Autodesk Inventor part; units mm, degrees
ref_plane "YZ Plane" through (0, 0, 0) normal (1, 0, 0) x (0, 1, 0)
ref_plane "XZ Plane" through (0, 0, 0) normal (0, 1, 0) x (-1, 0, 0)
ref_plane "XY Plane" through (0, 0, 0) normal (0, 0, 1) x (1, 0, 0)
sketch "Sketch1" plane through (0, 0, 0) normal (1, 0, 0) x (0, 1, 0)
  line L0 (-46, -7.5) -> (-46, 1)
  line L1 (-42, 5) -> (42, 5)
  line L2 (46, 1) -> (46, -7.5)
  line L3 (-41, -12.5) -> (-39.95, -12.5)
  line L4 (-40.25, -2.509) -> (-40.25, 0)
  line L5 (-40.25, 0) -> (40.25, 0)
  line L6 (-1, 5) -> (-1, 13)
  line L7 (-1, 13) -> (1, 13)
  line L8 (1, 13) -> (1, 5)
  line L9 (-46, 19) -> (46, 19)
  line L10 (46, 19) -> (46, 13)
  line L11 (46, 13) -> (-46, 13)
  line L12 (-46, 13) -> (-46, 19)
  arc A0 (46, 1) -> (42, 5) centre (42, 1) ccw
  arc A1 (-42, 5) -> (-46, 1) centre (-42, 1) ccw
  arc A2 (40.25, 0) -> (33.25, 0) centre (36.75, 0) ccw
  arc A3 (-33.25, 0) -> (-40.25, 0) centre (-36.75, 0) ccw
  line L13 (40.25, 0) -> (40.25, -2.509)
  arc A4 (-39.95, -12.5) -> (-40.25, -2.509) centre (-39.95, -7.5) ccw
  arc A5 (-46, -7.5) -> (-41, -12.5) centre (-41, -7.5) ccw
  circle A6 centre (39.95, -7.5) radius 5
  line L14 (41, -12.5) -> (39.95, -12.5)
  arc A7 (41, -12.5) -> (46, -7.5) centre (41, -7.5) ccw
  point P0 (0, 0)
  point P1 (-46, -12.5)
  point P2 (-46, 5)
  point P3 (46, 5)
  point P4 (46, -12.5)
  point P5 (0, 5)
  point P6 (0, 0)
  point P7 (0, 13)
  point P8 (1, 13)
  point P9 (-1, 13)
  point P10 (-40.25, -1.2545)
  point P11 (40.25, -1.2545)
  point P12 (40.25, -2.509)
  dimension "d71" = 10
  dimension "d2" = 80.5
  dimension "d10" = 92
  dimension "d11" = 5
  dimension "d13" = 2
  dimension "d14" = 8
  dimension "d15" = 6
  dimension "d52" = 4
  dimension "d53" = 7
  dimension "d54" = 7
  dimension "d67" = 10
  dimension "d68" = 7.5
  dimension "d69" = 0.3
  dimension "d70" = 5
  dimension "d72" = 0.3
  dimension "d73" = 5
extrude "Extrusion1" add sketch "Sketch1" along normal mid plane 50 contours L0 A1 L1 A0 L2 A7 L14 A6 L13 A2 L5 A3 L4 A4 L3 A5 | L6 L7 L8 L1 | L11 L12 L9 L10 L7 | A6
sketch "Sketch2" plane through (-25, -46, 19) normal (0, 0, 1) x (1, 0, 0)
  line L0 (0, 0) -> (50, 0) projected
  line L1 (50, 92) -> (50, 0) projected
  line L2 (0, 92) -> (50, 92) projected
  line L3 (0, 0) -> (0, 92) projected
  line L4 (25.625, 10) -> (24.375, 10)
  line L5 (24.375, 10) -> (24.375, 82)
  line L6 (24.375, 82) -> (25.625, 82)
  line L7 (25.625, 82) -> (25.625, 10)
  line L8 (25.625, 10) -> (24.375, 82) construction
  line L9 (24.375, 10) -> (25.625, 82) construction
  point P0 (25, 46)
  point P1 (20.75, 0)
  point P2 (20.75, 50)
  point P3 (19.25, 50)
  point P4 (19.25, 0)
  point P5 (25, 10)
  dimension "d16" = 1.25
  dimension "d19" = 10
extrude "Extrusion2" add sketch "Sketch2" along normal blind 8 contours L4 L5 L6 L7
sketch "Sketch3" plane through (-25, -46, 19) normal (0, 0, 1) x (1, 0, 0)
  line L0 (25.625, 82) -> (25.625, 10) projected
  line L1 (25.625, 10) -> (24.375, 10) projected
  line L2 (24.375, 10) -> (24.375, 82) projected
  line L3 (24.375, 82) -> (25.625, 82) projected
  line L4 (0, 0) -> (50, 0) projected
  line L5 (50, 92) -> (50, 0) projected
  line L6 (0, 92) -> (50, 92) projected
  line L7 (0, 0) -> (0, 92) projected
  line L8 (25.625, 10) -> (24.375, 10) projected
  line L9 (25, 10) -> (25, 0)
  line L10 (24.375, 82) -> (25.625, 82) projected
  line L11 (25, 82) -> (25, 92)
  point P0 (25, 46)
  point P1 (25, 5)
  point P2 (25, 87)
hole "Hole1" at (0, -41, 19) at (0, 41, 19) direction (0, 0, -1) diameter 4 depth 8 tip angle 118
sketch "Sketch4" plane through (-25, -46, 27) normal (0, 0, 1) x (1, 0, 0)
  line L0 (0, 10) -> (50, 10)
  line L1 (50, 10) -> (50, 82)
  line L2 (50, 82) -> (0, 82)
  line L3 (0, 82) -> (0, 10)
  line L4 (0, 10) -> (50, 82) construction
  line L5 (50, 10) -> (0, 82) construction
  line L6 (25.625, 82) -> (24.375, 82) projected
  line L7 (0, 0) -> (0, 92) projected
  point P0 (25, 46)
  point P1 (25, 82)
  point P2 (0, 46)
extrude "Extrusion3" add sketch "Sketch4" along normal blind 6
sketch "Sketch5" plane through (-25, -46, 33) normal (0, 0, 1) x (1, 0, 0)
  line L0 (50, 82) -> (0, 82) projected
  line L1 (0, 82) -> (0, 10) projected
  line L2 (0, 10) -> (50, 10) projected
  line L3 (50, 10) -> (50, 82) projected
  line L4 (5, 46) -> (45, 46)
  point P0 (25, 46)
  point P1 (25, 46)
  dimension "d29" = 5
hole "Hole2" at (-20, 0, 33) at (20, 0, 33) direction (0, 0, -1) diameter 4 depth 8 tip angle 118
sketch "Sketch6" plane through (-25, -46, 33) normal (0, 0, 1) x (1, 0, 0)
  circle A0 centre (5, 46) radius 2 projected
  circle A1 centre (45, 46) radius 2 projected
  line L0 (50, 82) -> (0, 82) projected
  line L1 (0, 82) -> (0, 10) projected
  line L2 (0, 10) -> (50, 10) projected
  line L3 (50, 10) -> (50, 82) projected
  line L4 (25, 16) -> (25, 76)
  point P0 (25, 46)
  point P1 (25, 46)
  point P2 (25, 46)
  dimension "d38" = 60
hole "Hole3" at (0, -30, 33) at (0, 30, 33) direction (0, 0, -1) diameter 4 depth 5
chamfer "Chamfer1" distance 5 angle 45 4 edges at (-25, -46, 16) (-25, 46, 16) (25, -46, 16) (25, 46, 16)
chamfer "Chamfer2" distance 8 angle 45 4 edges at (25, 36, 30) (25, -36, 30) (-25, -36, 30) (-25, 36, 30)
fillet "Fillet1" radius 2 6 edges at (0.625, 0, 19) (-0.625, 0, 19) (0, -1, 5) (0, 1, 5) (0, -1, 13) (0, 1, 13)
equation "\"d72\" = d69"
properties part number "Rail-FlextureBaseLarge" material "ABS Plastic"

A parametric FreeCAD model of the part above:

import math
import FreeCAD as App
import Part
import Sketcher


def edges_at(feature, points):
    """Names of the edges that pass closest to the given points."""
    edges = feature.Shape.Edges
    near = lambda p: min(range(len(edges)), key=lambda i: edges[i].distToShape(Part.Vertex(*p))[0])
    return sorted({f"Edge{near(p) + 1}" for p in points})


def add_polygon(sketch, points):
    """Adds a closed chain of lines whose ends are joined by coincident constraints."""
    first, n = sketch.GeometryCount, len(points)
    for a, b in zip(points, points[1:] + points[:1]):
        sketch.addGeometry(Part.LineSegment(App.Vector(*a, 0), App.Vector(*b, 0)), False)
    for i in range(n):
        sketch.addConstraint(Sketcher.Constraint("Coincident", first + i, 2, first + (i + 1) % n, 1))

doc = App.newDocument("Part")
params = doc.addObject("Spreadsheet::Sheet", "Params")
for row, (alias, value) in enumerate([
    ("sketch1_radius", "5 mm"),
    ("sketch1_radius2", "4 mm"),
    ("sketch1_radius3", "3.5 mm"),
    ("sketch1_width", "92 mm"),
    ("sketch1_height", "8 mm"),
    ("pad1_length", "50 mm"),
    ("sketch2_width", "1.25 mm"),
    ("sketch2_height", "72 mm"),
    ("pad2_length", "8 mm"),
    ("sketch3_diameter", "4 mm"),
    ("hole_diameter", "4 mm"),
    ("hole_depth", "8 mm"),
    ("sketch4_width", "50 mm"),
    ("sketch4_height", "72 mm"),
    ("pad3_length", "6 mm"),
    ("sketch5_diameter", "4 mm"),
    ("hole2_diameter", "4 mm"),
    ("hole2_depth", "8 mm"),
    ("sketch6_diameter", "4 mm"),
    ("hole3_diameter", "4 mm"),
    ("hole3_depth", "5 mm"),
    ("chamfer_size", "5 mm"),
    ("chamfer2_size", "8 mm"),
    ("fillet_radius", "2 mm"),
], start=1):
    params.set(f"A{row}", alias)
    params.set(f"B{row}", "=" + value)
    params.setAlias(f"B{row}", alias)

body = doc.addObject("PartDesign::Body", "Body")

sketch1 = body.newObject("Sketcher::SketchObject", "Sketch")
sketch1.AttachmentSupport = (doc.getObject("YZ_Plane"), [""])
sketch1.MapMode = "FlatFace"
sketch1.addGeometry([
    Part.LineSegment(App.Vector(-46, 1, 0), App.Vector(-46, -7.5, 0)),
    Part.ArcOfCircle(Part.Circle(App.Vector(-41, -7.5, 0), App.Vector(0, 0, 1), 5), math.radians(180), math.radians(270)),
    Part.LineSegment(App.Vector(-41, -12.5, 0), App.Vector(-39.95, -12.5, 0)),
    Part.ArcOfCircle(Part.Circle(App.Vector(-39.95, -7.5, 0), App.Vector(0, 0, 1), 5), math.radians(-90), math.radians(93.439807)),
    Part.LineSegment(App.Vector(-40.25, -2.509, 0), App.Vector(-40.25, 0, 0)),
    Part.ArcOfCircle(Part.Circle(App.Vector(-36.75, 0, 0), App.Vector(0, 0, 1), 3.5), math.radians(0), math.radians(180)),
    Part.LineSegment(App.Vector(-33.25, 0, 0), App.Vector(33.25, 0, 0)),
    Part.ArcOfCircle(Part.Circle(App.Vector(36.75, 0, 0), App.Vector(0, 0, 1), 3.5), math.radians(0), math.radians(180)),
    Part.LineSegment(App.Vector(40.25, 0, 0), App.Vector(40.25, -2.509, 0)),
    Part.ArcOfCircle(Part.Circle(App.Vector(39.95, -7.5, 0), App.Vector(0, 0, 1), 5), math.radians(86.560193), math.radians(270)),
    Part.LineSegment(App.Vector(39.95, -12.5, 0), App.Vector(41, -12.5, 0)),
    Part.ArcOfCircle(Part.Circle(App.Vector(41, -7.5, 0), App.Vector(0, 0, 1), 5), math.radians(-90), math.radians(0)),
    Part.LineSegment(App.Vector(46, -7.5, 0), App.Vector(46, 1, 0)),
    Part.ArcOfCircle(Part.Circle(App.Vector(42, 1, 0), App.Vector(0, 0, 1), 4), math.radians(0), math.radians(90)),
    Part.LineSegment(App.Vector(42, 5, 0), App.Vector(1, 5, 0)),
    Part.LineSegment(App.Vector(1, 5, 0), App.Vector(1, 13, 0)),
    Part.LineSegment(App.Vector(1, 13, 0), App.Vector(46, 13, 0)),
    Part.LineSegment(App.Vector(46, 13, 0), App.Vector(46, 19, 0)),
    Part.LineSegment(App.Vector(46, 19, 0), App.Vector(-46, 19, 0)),
    Part.LineSegment(App.Vector(-46, 19, 0), App.Vector(-46, 13, 0)),
    Part.LineSegment(App.Vector(-46, 13, 0), App.Vector(-1, 13, 0)),
    Part.LineSegment(App.Vector(-1, 13, 0), App.Vector(-1, 5, 0)),
    Part.LineSegment(App.Vector(-1, 5, 0), App.Vector(-42, 5, 0)),
    Part.ArcOfCircle(Part.Circle(App.Vector(-42, 1, 0), App.Vector(0, 0, 1), 4), math.radians(90), math.radians(180)),
], False)
sketch1.addConstraint([
    Sketcher.Constraint("Tangent", 0, 2, 1, 1),
    Sketcher.Constraint("Tangent", 1, 2, 2, 1),
    Sketcher.Constraint("Tangent", 2, 2, 3, 1),
    Sketcher.Constraint("Coincident", 3, 2, 4, 1),
    Sketcher.Constraint("Tangent", 4, 2, 5, 2),
    Sketcher.Constraint("Coincident", 5, 1, 6, 1),
    Sketcher.Constraint("Coincident", 6, 2, 7, 2),
    Sketcher.Constraint("Tangent", 7, 1, 8, 1),
    Sketcher.Constraint("Coincident", 8, 2, 9, 1),
    Sketcher.Constraint("Tangent", 9, 2, 10, 1),
    Sketcher.Constraint("Tangent", 10, 2, 11, 1),
    Sketcher.Constraint("Tangent", 11, 2, 12, 1),
    Sketcher.Constraint("Tangent", 12, 2, 13, 1),
    Sketcher.Constraint("Tangent", 13, 2, 14, 1),
    Sketcher.Constraint("Coincident", 14, 2, 15, 1),
    Sketcher.Constraint("Coincident", 15, 2, 16, 1),
    Sketcher.Constraint("Coincident", 16, 2, 17, 1),
    Sketcher.Constraint("Coincident", 17, 2, 18, 1),
    Sketcher.Constraint("Coincident", 18, 2, 19, 1),
    Sketcher.Constraint("Coincident", 19, 2, 20, 1),
    Sketcher.Constraint("Coincident", 20, 2, 21, 1),
    Sketcher.Constraint("Coincident", 21, 2, 22, 1),
    Sketcher.Constraint("Tangent", 22, 2, 23, 1),
    Sketcher.Constraint("Tangent", 23, 2, 0, 1),
    Sketcher.Constraint("Vertical", 0),
    Sketcher.Constraint("Horizontal", 2),
    Sketcher.Constraint("Vertical", 4),
    Sketcher.Constraint("Horizontal", 6),
    Sketcher.Constraint("Vertical", 8),
    Sketcher.Constraint("Horizontal", 10),
    Sketcher.Constraint("Vertical", 12),
    Sketcher.Constraint("Horizontal", 14),
    Sketcher.Constraint("Vertical", 15),
    Sketcher.Constraint("Horizontal", 16),
    Sketcher.Constraint("Vertical", 17),
    Sketcher.Constraint("Horizontal", 18),
    Sketcher.Constraint("Vertical", 19),
    Sketcher.Constraint("Horizontal", 20),
    Sketcher.Constraint("Vertical", 21),
    Sketcher.Constraint("Horizontal", 22),
    Sketcher.Constraint("Equal", 1, 3),
    Sketcher.Constraint("Equal", 5, 7),
    Sketcher.Constraint("Equal", 3, 9),
    Sketcher.Constraint("Equal", 9, 11),
    Sketcher.Constraint("Equal", 13, 23),
    Sketcher.Constraint("Symmetric", 5, 3, 7, 3, -1, 1),
    Sketcher.Constraint("Symmetric", 3, 3, 9, 3, -2),
    Sketcher.Constraint("Symmetric", 13, 3, 23, 3, -2),
    Sketcher.Constraint("Symmetric", 16, 2, 19, 2, -2),
    Sketcher.Constraint("PointOnObject", 5, 3, -1),
    Sketcher.Constraint("PointOnObject", 5, 1, -1),
    Sketcher.Constraint("Vertical", 12, 2, 16, 2),
    Sketcher.Constraint("Equal", 16, 20),
    Sketcher.Constraint("Radius", 1, 5.0),
    Sketcher.Constraint("Radius", 13, 4.0),
    Sketcher.Constraint("Radius", 5, 3.5),
    Sketcher.Constraint("DistanceX", 18, 2, 18, 1, 92.0),
    Sketcher.Constraint("DistanceY", 15, 1, 15, 2, 8.0),
    Sketcher.Constraint("DistanceY", 17, 1, 17, 2, 6.0),
    Sketcher.Constraint("DistanceY", -1, 1, 13, 2, 5.0),
    Sketcher.Constraint("DistanceX", 20, 2, 15, 2, 2.0),
    Sketcher.Constraint("DistanceY", 1, 3, -1, 1, 7.5),
    Sketcher.Constraint("DistanceX", 3, 2, 3, 3, 0.3),
    Sketcher.Constraint("DistanceX", 6, 1, 6, 2, 66.5),
])
sketch1.setExpression("Constraints[53]", "Params.sketch1_radius")
sketch1.setExpression("Constraints[54]", "Params.sketch1_radius2")
sketch1.setExpression("Constraints[55]", "Params.sketch1_radius3")
sketch1.setExpression("Constraints[56]", "Params.sketch1_width")
sketch1.setExpression("Constraints[57]", "Params.sketch1_height")
pad1 = body.newObject("PartDesign::Pad", "Pad")
pad1.Profile = sketch1
pad1.setExpression("Length", "Params.pad1_length")
pad1.Midplane = True

sketch2 = body.newObject("Sketcher::SketchObject", "Sketch001")
sketch2.AttachmentSupport = (doc.getObject("XY_Plane"), [""])
sketch2.MapMode = "FlatFace"
sketch2.AttachmentOffset = App.Placement(App.Vector(0, 0, 19), App.Rotation())
add_polygon(sketch2, [(-0.625, -36), (0.625, -36), (0.625, 36), (-0.625, 36)])
sketch2.addConstraint([
    Sketcher.Constraint("Horizontal", 0),
    Sketcher.Constraint("Vertical", 1),
    Sketcher.Constraint("Horizontal", 2),
    Sketcher.Constraint("Vertical", 3),
    Sketcher.Constraint("Symmetric", 0, 2, 2, 2, -1, 1),
    Sketcher.Constraint("DistanceX", 0, 1, 0, 2, 1.25),
    Sketcher.Constraint("DistanceY", 1, 1, 1, 2, 72.0),
])
sketch2.setExpression("Constraints[9]", "Params.sketch2_width")
sketch2.setExpression("Constraints[10]", "Params.sketch2_height")
pad2 = body.newObject("PartDesign::Pad", "Pad001")
pad2.Profile = sketch2
pad2.setExpression("Length", "Params.pad2_length")

sketch3 = body.newObject("Sketcher::SketchObject", "Sketch002")
sketch3.AttachmentSupport = (doc.getObject("XY_Plane"), [""])
sketch3.MapMode = "FlatFace"
sketch3.AttachmentOffset = App.Placement(App.Vector(0, 0, 19), App.Rotation())
sketch3.addGeometry([
    Part.Circle(App.Vector(0, -41, 0), App.Vector(0, 0, 1), 2),
    Part.Circle(App.Vector(0, 41, 0), App.Vector(0, 0, 1), 2),
], False)
sketch3.addConstraint([
    Sketcher.Constraint("Equal", 0, 1),
    Sketcher.Constraint("Symmetric", 0, 3, 1, 3, -1, 1),
    Sketcher.Constraint("PointOnObject", 0, 3, -2),
    Sketcher.Constraint("Diameter", 0, 4.0),
    Sketcher.Constraint("DistanceY", 0, 3, -1, 1, 41.0),
])
sketch3.setExpression("Constraints[3]", "Params.sketch3_diameter")
doc.recompute()
hole = body.newObject("PartDesign::Hole", "Hole")
hole.Profile = sketch3
hole.ThreadType = "None"
hole.setExpression("Diameter", "Params.hole_diameter")
hole.DepthType = "Dimension"
hole.setExpression("Depth", "Params.hole_depth")
hole.DrillPoint = "Angled"
hole.DrillPointAngle = 118

sketch4 = body.newObject("Sketcher::SketchObject", "Sketch003")
sketch4.AttachmentSupport = (doc.getObject("XY_Plane"), [""])
sketch4.MapMode = "FlatFace"
sketch4.AttachmentOffset = App.Placement(App.Vector(0, 0, 27), App.Rotation())
add_polygon(sketch4, [(-25, 36), (-25, -36), (25, -36), (25, 36)])
sketch4.addConstraint([
    Sketcher.Constraint("Vertical", 0),
    Sketcher.Constraint("Horizontal", 1),
    Sketcher.Constraint("Vertical", 2),
    Sketcher.Constraint("Horizontal", 3),
    Sketcher.Constraint("Symmetric", 0, 2, 2, 2, -1, 1),
    Sketcher.Constraint("DistanceX", 1, 1, 1, 2, 50.0),
    Sketcher.Constraint("DistanceY", 0, 2, 0, 1, 72.0),
])
sketch4.setExpression("Constraints[9]", "Params.sketch4_width")
sketch4.setExpression("Constraints[10]", "Params.sketch4_height")
pad3 = body.newObject("PartDesign::Pad", "Pad002")
pad3.Profile = sketch4
pad3.setExpression("Length", "Params.pad3_length")

sketch5 = body.newObject("Sketcher::SketchObject", "Sketch004")
sketch5.AttachmentSupport = (doc.getObject("XY_Plane"), [""])
sketch5.MapMode = "FlatFace"
sketch5.AttachmentOffset = App.Placement(App.Vector(0, 0, 33), App.Rotation())
sketch5.addGeometry([
    Part.Circle(App.Vector(-20, 0, 0), App.Vector(0, 0, 1), 2),
    Part.Circle(App.Vector(20, 0, 0), App.Vector(0, 0, 1), 2),
], False)
sketch5.addConstraint([
    Sketcher.Constraint("Equal", 0, 1),
    Sketcher.Constraint("Symmetric", 0, 3, 1, 3, -1, 1),
    Sketcher.Constraint("PointOnObject", 0, 3, -1),
    Sketcher.Constraint("Diameter", 0, 4.0),
    Sketcher.Constraint("DistanceX", 0, 3, -1, 1, 20.0),
])
sketch5.setExpression("Constraints[3]", "Params.sketch5_diameter")
doc.recompute()
hole2 = body.newObject("PartDesign::Hole", "Hole001")
hole2.Profile = sketch5
hole2.ThreadType = "None"
hole2.setExpression("Diameter", "Params.hole2_diameter")
hole2.DepthType = "Dimension"
hole2.setExpression("Depth", "Params.hole2_depth")
hole2.DrillPoint = "Angled"
hole2.DrillPointAngle = 118

sketch6 = body.newObject("Sketcher::SketchObject", "Sketch005")
sketch6.AttachmentSupport = (doc.getObject("XY_Plane"), [""])
sketch6.MapMode = "FlatFace"
sketch6.AttachmentOffset = App.Placement(App.Vector(0, 0, 33), App.Rotation())
sketch6.addGeometry([
    Part.Circle(App.Vector(0, -30, 0), App.Vector(0, 0, 1), 2),
    Part.Circle(App.Vector(0, 30, 0), App.Vector(0, 0, 1), 2),
], False)
sketch6.addConstraint([
    Sketcher.Constraint("Equal", 0, 1),
    Sketcher.Constraint("Symmetric", 0, 3, 1, 3, -1, 1),
    Sketcher.Constraint("PointOnObject", 0, 3, -2),
    Sketcher.Constraint("Diameter", 0, 4.0),
    Sketcher.Constraint("DistanceY", 0, 3, -1, 1, 30.0),
])
sketch6.setExpression("Constraints[3]", "Params.sketch6_diameter")
doc.recompute()
hole3 = body.newObject("PartDesign::Hole", "Hole002")
hole3.Profile = sketch6
hole3.ThreadType = "None"
hole3.setExpression("Diameter", "Params.hole3_diameter")
hole3.DepthType = "Dimension"
hole3.setExpression("Depth", "Params.hole3_depth")
hole3.DrillPoint = "Flat"
doc.recompute()

chamfer = body.newObject("PartDesign::Chamfer", "Chamfer")
chamfer.Base = (hole3, edges_at(hole3, [
    (-25, -46, 16),
    (-25, 46, 16),
    (25, -46, 16),
    (25, 46, 16),
]))
chamfer.setExpression("Size", "Params.chamfer_size")
doc.recompute()

chamfer2 = body.newObject("PartDesign::Chamfer", "Chamfer001")
chamfer2.Base = (chamfer, edges_at(chamfer, [
    (25, 36, 30),
    (25, -36, 30),
    (-25, -36, 30),
    (-25, 36, 30),
]))
chamfer2.setExpression("Size", "Params.chamfer2_size")
doc.recompute()

fillet = body.newObject("PartDesign::Fillet", "Fillet")
fillet.Base = (chamfer2, edges_at(chamfer2, [
    (0.625, 0, 19),
    (-0.625, 0, 19),
    (0, -1, 5),
    (0, 1, 5),
    (0, -1, 13),
    (0, 1, 13),
]))
fillet.setExpression("Radius", "Params.fillet_radius")

doc.recompute()
